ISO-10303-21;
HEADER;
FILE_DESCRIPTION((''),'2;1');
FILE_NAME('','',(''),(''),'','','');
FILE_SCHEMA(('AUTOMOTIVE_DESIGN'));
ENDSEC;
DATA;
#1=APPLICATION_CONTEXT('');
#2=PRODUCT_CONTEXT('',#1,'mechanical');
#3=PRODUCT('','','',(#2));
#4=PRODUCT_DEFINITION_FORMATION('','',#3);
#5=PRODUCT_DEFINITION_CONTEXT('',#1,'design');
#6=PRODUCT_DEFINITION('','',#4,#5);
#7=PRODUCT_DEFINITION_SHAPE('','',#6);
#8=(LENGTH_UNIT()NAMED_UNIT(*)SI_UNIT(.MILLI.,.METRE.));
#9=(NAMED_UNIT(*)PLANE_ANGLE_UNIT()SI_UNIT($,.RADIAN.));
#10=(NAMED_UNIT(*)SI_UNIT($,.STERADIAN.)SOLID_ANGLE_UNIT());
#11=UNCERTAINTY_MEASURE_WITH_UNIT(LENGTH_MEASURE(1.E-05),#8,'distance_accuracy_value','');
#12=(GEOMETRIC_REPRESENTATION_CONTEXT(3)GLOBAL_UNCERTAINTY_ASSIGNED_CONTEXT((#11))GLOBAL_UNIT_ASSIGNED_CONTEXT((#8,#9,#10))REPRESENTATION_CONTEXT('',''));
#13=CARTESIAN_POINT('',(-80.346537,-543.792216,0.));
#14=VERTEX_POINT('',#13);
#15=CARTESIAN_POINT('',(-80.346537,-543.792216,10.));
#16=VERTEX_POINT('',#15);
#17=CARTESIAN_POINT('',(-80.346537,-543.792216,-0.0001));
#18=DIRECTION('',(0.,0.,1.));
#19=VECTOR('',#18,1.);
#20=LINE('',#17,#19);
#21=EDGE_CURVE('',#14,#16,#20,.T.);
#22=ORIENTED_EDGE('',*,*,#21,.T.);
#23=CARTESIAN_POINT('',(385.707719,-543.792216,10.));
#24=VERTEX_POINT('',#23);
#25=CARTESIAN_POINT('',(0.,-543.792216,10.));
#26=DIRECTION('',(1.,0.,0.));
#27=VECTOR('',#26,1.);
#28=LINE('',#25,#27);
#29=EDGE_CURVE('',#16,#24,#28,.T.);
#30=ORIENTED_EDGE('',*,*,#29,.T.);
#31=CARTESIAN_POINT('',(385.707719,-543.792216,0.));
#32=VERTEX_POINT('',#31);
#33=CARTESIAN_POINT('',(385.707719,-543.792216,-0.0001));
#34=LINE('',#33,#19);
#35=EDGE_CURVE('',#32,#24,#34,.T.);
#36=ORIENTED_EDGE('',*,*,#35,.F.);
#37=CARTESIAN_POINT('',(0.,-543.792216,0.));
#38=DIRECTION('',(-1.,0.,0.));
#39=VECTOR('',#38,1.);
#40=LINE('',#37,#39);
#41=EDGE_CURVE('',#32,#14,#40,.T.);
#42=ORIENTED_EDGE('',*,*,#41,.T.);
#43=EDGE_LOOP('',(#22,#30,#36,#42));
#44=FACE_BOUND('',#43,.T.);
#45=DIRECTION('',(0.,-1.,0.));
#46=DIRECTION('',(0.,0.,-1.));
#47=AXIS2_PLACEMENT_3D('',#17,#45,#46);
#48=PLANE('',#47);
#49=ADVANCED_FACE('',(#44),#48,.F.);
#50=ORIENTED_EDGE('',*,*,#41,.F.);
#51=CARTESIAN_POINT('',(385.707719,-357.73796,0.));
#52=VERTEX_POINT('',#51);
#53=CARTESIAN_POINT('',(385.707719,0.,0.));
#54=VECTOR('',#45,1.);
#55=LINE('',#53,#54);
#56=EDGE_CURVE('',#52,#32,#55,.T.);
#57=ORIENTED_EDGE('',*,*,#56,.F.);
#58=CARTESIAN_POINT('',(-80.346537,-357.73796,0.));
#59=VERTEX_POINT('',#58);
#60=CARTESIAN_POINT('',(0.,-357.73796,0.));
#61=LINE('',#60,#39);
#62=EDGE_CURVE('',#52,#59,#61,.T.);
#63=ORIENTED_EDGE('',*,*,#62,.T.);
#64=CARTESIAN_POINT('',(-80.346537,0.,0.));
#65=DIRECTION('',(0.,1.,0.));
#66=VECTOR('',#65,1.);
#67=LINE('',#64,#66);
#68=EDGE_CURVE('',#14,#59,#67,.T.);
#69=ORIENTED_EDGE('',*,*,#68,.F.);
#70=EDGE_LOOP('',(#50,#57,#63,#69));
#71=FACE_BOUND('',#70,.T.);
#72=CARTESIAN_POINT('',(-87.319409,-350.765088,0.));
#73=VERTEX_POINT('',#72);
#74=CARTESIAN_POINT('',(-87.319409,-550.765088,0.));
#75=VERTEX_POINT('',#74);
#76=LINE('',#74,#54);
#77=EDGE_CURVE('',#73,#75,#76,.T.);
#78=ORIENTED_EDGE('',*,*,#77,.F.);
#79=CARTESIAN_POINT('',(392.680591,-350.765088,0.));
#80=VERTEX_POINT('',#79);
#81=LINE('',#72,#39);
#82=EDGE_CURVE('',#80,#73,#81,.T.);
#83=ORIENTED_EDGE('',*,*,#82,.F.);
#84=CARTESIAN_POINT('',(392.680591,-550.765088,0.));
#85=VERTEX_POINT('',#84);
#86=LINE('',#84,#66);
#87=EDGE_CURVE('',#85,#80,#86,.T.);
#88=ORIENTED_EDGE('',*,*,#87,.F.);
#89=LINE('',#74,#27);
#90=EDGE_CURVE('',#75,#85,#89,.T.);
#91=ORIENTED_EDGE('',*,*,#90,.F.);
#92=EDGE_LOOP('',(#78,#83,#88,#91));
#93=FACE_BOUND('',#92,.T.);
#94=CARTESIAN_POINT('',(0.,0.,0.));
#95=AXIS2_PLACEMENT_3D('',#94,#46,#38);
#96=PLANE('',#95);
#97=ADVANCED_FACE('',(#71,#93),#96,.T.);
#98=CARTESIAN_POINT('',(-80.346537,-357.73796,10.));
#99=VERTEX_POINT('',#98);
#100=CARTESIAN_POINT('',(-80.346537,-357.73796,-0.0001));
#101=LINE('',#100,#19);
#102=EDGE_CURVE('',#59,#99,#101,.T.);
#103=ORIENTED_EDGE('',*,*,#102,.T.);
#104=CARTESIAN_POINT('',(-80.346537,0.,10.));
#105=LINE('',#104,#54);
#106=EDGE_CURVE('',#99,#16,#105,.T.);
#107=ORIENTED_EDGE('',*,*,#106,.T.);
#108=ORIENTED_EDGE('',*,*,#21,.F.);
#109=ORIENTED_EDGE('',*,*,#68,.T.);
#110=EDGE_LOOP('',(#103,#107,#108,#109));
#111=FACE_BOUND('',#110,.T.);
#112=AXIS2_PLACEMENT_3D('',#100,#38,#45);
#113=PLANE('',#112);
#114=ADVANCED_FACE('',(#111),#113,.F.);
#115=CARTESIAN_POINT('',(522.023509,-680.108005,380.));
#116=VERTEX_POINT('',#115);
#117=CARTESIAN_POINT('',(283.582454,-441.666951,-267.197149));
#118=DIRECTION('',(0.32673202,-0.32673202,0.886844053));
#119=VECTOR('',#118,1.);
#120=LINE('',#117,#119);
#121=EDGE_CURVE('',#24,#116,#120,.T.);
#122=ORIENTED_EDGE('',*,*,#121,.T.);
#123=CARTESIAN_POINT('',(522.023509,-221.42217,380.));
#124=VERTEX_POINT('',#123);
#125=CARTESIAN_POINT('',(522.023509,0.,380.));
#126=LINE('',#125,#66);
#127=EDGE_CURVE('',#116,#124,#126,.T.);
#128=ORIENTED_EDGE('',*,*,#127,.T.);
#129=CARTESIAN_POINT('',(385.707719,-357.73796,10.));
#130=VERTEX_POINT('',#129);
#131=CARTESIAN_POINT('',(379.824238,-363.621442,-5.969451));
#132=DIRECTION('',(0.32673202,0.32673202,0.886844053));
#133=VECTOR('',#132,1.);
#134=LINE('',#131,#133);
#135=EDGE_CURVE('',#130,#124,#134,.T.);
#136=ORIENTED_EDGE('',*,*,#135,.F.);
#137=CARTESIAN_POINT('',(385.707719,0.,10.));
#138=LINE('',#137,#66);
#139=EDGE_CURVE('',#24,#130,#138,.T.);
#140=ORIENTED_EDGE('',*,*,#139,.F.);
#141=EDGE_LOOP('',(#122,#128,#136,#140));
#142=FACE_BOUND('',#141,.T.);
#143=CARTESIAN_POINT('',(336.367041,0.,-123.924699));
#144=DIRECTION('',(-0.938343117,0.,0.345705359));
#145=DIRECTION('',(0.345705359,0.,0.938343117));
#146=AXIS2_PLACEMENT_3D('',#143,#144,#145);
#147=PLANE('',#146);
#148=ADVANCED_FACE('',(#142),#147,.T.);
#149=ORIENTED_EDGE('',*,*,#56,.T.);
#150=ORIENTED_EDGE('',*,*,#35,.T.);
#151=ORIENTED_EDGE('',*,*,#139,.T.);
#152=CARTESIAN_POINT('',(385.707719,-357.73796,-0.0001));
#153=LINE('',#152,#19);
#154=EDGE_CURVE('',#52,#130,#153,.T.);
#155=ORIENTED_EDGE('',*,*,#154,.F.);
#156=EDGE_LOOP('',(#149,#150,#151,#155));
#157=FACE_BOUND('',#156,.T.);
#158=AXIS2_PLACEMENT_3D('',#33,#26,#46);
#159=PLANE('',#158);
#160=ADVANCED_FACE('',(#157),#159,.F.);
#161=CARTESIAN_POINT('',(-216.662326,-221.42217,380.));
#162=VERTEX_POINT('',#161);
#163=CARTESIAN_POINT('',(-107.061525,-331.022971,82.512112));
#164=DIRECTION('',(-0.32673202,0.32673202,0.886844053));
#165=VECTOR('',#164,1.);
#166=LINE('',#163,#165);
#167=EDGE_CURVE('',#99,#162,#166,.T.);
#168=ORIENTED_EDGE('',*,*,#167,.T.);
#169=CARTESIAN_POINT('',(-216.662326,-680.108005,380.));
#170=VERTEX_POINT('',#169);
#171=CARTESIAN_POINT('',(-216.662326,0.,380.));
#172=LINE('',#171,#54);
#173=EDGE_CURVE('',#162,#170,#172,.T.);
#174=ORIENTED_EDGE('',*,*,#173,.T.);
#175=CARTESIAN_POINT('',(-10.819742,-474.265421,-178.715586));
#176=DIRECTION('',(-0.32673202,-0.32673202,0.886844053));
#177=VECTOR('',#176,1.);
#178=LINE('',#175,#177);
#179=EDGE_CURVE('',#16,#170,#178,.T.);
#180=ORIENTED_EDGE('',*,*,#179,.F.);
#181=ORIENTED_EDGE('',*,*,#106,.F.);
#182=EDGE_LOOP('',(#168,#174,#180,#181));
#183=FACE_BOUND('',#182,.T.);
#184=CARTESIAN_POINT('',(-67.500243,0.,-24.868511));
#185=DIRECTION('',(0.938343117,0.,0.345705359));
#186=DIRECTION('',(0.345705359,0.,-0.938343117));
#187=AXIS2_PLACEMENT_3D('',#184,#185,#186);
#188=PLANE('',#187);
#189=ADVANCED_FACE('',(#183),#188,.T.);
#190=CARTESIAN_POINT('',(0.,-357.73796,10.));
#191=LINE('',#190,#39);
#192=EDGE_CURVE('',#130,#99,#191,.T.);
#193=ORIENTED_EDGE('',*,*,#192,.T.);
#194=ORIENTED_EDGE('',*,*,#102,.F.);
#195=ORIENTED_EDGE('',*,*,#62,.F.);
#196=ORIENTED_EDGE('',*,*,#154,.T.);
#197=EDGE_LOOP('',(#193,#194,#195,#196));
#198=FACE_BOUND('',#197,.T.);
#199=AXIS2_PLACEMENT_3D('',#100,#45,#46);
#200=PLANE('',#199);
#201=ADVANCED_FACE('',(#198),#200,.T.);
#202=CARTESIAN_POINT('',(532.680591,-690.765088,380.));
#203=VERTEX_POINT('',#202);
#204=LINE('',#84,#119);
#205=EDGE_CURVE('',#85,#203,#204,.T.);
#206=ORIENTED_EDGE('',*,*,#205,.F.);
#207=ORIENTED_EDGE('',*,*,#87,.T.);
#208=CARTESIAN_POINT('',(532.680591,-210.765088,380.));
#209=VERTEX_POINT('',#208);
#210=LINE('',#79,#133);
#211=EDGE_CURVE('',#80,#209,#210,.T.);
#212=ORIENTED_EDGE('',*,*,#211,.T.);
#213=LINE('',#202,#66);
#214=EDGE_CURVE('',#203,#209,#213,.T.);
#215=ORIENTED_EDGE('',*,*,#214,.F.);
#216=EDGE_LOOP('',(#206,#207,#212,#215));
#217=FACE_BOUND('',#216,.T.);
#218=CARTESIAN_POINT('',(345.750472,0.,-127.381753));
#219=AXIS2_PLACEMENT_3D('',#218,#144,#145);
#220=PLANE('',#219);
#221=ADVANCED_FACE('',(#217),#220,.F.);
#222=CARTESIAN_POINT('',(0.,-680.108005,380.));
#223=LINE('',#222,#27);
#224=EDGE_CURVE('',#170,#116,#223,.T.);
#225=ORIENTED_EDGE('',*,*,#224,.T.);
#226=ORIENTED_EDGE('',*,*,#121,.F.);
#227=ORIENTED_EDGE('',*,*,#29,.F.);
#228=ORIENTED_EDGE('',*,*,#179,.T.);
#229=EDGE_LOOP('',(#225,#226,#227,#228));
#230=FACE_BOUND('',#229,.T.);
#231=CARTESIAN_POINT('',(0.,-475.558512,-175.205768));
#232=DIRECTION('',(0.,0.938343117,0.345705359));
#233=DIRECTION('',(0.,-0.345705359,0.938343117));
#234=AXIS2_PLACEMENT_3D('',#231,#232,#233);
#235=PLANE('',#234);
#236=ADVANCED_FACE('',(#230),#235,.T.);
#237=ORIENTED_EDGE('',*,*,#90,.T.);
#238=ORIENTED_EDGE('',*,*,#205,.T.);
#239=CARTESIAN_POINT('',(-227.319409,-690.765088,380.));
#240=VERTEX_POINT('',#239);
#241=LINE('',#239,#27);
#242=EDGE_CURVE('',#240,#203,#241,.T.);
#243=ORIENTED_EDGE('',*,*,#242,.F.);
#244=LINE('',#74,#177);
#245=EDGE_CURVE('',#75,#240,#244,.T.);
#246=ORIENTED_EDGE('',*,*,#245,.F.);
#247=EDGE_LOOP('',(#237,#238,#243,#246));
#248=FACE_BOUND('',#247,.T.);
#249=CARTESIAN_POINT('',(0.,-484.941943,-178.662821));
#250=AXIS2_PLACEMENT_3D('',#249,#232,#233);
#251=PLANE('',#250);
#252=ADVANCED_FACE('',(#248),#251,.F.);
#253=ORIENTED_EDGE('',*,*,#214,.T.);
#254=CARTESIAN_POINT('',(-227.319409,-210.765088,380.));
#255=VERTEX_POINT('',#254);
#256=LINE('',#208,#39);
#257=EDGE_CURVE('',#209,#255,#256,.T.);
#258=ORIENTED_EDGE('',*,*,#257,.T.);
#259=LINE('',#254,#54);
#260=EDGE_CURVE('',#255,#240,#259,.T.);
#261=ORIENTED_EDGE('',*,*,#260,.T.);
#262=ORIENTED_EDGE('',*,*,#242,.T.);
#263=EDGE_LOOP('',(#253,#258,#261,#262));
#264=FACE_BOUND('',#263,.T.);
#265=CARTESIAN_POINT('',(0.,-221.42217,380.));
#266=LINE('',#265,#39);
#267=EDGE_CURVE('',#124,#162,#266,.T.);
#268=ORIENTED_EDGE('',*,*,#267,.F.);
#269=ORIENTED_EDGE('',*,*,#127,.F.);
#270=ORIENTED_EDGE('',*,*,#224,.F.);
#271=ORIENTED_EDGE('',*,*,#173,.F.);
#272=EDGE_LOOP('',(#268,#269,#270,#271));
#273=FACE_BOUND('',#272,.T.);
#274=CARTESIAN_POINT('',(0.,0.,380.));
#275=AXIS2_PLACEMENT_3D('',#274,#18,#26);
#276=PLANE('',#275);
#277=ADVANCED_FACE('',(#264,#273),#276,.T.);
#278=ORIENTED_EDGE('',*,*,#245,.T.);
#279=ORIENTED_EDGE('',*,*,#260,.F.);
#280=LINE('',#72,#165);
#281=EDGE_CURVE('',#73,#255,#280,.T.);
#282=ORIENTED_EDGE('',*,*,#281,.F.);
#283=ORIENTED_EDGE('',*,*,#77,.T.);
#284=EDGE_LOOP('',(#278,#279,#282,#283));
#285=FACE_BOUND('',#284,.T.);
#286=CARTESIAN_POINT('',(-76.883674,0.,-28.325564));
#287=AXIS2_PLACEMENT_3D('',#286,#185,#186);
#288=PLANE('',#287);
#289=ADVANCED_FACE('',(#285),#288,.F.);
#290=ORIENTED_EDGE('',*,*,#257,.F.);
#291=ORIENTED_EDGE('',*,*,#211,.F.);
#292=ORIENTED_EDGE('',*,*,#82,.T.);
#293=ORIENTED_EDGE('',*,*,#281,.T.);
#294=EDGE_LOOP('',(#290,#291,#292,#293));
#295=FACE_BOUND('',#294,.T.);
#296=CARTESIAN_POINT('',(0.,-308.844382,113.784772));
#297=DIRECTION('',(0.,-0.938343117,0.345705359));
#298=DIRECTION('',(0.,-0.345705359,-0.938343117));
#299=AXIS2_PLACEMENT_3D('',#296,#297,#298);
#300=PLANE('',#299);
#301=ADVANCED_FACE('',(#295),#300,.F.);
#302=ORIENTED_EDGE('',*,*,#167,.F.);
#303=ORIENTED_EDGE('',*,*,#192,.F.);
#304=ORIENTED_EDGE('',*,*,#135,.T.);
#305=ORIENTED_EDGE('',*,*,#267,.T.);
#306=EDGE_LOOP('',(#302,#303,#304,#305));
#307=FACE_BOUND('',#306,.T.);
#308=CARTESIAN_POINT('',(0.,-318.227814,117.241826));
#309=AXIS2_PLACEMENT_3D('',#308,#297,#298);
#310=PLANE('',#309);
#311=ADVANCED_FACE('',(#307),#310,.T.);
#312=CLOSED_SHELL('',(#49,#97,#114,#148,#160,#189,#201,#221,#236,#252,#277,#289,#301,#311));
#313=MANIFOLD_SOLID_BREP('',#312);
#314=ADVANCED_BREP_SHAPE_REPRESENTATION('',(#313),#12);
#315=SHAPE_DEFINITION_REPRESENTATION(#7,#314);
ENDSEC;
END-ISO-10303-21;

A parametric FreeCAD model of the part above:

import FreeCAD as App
import Part
import Sketcher
from FreeCAD import Vector


def faces_at(feature, points):
    """Names of the faces that lie closest to the given points."""
    faces = feature.Shape.Faces
    near = lambda p: min(range(len(faces)), key=lambda i: faces[i].distToShape(Part.Vertex(*p))[0])
    return sorted({f"Face{near(p) + 1}" for p in points})


def add_polygon(sketch, points):
    """Adds a closed chain of lines whose ends are joined by coincident constraints."""
    first, n = sketch.GeometryCount, len(points)
    for a, b in zip(points, points[1:] + points[:1]):
        sketch.addGeometry(Part.LineSegment(App.Vector(*a, 0), App.Vector(*b, 0)), False)
    for i in range(n):
        sketch.addConstraint(Sketcher.Constraint("Coincident", first + i, 2, first + (i + 1) % n, 1))

doc = App.newDocument("Part")
body = doc.addObject("PartDesign::Body", "Body")

# Sketch on XY plane
sketch1 = body.newObject("Sketcher::SketchObject", "Sketch")
sketch1.AttachmentSupport = (doc.getObject("XY_Plane"), [""])
sketch1.MapMode = "FlatFace"
add_polygon(sketch1, [(-87.319409, -550.765088), (392.680591, -550.765088), (392.680591, -350.765088), (-87.319409, -350.765088)])  # lines 0-3
sketch1.addConstraint([
    Sketcher.Constraint("Horizontal", 0),
    Sketcher.Constraint("Vertical", 1),
    Sketcher.Constraint("Horizontal", 2),
    Sketcher.Constraint("Vertical", 3),
    Sketcher.Constraint("DistanceX", 0, 1, 0, 2, 480.0),
    Sketcher.Constraint("DistanceY", 1, 1, 1, 2, 200.0),
    Sketcher.Constraint("DistanceX", -1, 1, 0, 2, 392.680591),
    Sketcher.Constraint("DistanceY", 0, 2, -1, 1, 550.765088),
])

# Sketch on XY plane
sketch2 = body.newObject("Sketcher::SketchObject", "Sketch001")
sketch2.AttachmentSupport = (doc.getObject("XY_Plane"), [""])
sketch2.MapMode = "FlatFace"
sketch2.AttachmentOffset = App.Placement(Vector(0, 0, 380), App.Rotation())
add_polygon(sketch2, [(-227.319409, -690.765088), (532.680591, -690.765088), (532.680591, -210.765088), (-227.319409, -210.765088)])  # lines 0-3
sketch2.addConstraint([
    Sketcher.Constraint("Horizontal", 0),
    Sketcher.Constraint("Vertical", 1),
    Sketcher.Constraint("Horizontal", 2),
    Sketcher.Constraint("Vertical", 3),
    Sketcher.Constraint("DistanceX", 0, 1, 0, 2, 760.0),
    Sketcher.Constraint("DistanceY", 1, 1, 1, 2, 480.0),
    Sketcher.Constraint("DistanceX", -1, 1, 0, 2, 532.680591),
    Sketcher.Constraint("DistanceY", 0, 2, -1, 1, 690.765088),
])

additiveloft = body.newObject("PartDesign::AdditiveLoft", "AdditiveLoft")
additiveloft.Profile = sketch1
additiveloft.Sections = [sketch2]
doc.recompute()

thickness = body.newObject("PartDesign::Thickness", "Thickness")
thickness.Base = (additiveloft, faces_at(additiveloft, [(152.681, -450.765, 380)]))
thickness.Value = 10
thickness.Reversed = True
thickness.Join = "Intersection"

# Sketch on XY plane
sketch3 = body.newObject("Sketcher::SketchObject", "Sketch002")
sketch3.AttachmentSupport = (doc.getObject("XY_Plane"), [""])
sketch3.MapMode = "FlatFace"
sketch3.AttachmentOffset = App.Placement(Vector(0, 0, 10), App.Rotation())
add_polygon(sketch3, [(385.707719, -357.73796), (-80.346537, -357.73796), (-80.346537, -543.792216), (385.707719, -543.792216)])  # lines 0-3
sketch3.addConstraint([
    Sketcher.Constraint("Horizontal", 0),
    Sketcher.Constraint("Vertical", 1),
    Sketcher.Constraint("Horizontal", 2),
    Sketcher.Constraint("Vertical", 3),
    Sketcher.Constraint("DistanceX", 0, 2, 0, 1, 466.054256),
    Sketcher.Constraint("DistanceY", 1, 2, 1, 1, 186.054256),
    Sketcher.Constraint("DistanceY", 0, 2, -1, 1, 357.73796),
    Sketcher.Constraint("DistanceX", -1, 1, 2, 2, 385.707719),
])
pocket1 = body.newObject("PartDesign::Pocket", "Pocket")
pocket1.Profile = sketch3
pocket1.Type = "ThroughAll"

doc.recompute()
